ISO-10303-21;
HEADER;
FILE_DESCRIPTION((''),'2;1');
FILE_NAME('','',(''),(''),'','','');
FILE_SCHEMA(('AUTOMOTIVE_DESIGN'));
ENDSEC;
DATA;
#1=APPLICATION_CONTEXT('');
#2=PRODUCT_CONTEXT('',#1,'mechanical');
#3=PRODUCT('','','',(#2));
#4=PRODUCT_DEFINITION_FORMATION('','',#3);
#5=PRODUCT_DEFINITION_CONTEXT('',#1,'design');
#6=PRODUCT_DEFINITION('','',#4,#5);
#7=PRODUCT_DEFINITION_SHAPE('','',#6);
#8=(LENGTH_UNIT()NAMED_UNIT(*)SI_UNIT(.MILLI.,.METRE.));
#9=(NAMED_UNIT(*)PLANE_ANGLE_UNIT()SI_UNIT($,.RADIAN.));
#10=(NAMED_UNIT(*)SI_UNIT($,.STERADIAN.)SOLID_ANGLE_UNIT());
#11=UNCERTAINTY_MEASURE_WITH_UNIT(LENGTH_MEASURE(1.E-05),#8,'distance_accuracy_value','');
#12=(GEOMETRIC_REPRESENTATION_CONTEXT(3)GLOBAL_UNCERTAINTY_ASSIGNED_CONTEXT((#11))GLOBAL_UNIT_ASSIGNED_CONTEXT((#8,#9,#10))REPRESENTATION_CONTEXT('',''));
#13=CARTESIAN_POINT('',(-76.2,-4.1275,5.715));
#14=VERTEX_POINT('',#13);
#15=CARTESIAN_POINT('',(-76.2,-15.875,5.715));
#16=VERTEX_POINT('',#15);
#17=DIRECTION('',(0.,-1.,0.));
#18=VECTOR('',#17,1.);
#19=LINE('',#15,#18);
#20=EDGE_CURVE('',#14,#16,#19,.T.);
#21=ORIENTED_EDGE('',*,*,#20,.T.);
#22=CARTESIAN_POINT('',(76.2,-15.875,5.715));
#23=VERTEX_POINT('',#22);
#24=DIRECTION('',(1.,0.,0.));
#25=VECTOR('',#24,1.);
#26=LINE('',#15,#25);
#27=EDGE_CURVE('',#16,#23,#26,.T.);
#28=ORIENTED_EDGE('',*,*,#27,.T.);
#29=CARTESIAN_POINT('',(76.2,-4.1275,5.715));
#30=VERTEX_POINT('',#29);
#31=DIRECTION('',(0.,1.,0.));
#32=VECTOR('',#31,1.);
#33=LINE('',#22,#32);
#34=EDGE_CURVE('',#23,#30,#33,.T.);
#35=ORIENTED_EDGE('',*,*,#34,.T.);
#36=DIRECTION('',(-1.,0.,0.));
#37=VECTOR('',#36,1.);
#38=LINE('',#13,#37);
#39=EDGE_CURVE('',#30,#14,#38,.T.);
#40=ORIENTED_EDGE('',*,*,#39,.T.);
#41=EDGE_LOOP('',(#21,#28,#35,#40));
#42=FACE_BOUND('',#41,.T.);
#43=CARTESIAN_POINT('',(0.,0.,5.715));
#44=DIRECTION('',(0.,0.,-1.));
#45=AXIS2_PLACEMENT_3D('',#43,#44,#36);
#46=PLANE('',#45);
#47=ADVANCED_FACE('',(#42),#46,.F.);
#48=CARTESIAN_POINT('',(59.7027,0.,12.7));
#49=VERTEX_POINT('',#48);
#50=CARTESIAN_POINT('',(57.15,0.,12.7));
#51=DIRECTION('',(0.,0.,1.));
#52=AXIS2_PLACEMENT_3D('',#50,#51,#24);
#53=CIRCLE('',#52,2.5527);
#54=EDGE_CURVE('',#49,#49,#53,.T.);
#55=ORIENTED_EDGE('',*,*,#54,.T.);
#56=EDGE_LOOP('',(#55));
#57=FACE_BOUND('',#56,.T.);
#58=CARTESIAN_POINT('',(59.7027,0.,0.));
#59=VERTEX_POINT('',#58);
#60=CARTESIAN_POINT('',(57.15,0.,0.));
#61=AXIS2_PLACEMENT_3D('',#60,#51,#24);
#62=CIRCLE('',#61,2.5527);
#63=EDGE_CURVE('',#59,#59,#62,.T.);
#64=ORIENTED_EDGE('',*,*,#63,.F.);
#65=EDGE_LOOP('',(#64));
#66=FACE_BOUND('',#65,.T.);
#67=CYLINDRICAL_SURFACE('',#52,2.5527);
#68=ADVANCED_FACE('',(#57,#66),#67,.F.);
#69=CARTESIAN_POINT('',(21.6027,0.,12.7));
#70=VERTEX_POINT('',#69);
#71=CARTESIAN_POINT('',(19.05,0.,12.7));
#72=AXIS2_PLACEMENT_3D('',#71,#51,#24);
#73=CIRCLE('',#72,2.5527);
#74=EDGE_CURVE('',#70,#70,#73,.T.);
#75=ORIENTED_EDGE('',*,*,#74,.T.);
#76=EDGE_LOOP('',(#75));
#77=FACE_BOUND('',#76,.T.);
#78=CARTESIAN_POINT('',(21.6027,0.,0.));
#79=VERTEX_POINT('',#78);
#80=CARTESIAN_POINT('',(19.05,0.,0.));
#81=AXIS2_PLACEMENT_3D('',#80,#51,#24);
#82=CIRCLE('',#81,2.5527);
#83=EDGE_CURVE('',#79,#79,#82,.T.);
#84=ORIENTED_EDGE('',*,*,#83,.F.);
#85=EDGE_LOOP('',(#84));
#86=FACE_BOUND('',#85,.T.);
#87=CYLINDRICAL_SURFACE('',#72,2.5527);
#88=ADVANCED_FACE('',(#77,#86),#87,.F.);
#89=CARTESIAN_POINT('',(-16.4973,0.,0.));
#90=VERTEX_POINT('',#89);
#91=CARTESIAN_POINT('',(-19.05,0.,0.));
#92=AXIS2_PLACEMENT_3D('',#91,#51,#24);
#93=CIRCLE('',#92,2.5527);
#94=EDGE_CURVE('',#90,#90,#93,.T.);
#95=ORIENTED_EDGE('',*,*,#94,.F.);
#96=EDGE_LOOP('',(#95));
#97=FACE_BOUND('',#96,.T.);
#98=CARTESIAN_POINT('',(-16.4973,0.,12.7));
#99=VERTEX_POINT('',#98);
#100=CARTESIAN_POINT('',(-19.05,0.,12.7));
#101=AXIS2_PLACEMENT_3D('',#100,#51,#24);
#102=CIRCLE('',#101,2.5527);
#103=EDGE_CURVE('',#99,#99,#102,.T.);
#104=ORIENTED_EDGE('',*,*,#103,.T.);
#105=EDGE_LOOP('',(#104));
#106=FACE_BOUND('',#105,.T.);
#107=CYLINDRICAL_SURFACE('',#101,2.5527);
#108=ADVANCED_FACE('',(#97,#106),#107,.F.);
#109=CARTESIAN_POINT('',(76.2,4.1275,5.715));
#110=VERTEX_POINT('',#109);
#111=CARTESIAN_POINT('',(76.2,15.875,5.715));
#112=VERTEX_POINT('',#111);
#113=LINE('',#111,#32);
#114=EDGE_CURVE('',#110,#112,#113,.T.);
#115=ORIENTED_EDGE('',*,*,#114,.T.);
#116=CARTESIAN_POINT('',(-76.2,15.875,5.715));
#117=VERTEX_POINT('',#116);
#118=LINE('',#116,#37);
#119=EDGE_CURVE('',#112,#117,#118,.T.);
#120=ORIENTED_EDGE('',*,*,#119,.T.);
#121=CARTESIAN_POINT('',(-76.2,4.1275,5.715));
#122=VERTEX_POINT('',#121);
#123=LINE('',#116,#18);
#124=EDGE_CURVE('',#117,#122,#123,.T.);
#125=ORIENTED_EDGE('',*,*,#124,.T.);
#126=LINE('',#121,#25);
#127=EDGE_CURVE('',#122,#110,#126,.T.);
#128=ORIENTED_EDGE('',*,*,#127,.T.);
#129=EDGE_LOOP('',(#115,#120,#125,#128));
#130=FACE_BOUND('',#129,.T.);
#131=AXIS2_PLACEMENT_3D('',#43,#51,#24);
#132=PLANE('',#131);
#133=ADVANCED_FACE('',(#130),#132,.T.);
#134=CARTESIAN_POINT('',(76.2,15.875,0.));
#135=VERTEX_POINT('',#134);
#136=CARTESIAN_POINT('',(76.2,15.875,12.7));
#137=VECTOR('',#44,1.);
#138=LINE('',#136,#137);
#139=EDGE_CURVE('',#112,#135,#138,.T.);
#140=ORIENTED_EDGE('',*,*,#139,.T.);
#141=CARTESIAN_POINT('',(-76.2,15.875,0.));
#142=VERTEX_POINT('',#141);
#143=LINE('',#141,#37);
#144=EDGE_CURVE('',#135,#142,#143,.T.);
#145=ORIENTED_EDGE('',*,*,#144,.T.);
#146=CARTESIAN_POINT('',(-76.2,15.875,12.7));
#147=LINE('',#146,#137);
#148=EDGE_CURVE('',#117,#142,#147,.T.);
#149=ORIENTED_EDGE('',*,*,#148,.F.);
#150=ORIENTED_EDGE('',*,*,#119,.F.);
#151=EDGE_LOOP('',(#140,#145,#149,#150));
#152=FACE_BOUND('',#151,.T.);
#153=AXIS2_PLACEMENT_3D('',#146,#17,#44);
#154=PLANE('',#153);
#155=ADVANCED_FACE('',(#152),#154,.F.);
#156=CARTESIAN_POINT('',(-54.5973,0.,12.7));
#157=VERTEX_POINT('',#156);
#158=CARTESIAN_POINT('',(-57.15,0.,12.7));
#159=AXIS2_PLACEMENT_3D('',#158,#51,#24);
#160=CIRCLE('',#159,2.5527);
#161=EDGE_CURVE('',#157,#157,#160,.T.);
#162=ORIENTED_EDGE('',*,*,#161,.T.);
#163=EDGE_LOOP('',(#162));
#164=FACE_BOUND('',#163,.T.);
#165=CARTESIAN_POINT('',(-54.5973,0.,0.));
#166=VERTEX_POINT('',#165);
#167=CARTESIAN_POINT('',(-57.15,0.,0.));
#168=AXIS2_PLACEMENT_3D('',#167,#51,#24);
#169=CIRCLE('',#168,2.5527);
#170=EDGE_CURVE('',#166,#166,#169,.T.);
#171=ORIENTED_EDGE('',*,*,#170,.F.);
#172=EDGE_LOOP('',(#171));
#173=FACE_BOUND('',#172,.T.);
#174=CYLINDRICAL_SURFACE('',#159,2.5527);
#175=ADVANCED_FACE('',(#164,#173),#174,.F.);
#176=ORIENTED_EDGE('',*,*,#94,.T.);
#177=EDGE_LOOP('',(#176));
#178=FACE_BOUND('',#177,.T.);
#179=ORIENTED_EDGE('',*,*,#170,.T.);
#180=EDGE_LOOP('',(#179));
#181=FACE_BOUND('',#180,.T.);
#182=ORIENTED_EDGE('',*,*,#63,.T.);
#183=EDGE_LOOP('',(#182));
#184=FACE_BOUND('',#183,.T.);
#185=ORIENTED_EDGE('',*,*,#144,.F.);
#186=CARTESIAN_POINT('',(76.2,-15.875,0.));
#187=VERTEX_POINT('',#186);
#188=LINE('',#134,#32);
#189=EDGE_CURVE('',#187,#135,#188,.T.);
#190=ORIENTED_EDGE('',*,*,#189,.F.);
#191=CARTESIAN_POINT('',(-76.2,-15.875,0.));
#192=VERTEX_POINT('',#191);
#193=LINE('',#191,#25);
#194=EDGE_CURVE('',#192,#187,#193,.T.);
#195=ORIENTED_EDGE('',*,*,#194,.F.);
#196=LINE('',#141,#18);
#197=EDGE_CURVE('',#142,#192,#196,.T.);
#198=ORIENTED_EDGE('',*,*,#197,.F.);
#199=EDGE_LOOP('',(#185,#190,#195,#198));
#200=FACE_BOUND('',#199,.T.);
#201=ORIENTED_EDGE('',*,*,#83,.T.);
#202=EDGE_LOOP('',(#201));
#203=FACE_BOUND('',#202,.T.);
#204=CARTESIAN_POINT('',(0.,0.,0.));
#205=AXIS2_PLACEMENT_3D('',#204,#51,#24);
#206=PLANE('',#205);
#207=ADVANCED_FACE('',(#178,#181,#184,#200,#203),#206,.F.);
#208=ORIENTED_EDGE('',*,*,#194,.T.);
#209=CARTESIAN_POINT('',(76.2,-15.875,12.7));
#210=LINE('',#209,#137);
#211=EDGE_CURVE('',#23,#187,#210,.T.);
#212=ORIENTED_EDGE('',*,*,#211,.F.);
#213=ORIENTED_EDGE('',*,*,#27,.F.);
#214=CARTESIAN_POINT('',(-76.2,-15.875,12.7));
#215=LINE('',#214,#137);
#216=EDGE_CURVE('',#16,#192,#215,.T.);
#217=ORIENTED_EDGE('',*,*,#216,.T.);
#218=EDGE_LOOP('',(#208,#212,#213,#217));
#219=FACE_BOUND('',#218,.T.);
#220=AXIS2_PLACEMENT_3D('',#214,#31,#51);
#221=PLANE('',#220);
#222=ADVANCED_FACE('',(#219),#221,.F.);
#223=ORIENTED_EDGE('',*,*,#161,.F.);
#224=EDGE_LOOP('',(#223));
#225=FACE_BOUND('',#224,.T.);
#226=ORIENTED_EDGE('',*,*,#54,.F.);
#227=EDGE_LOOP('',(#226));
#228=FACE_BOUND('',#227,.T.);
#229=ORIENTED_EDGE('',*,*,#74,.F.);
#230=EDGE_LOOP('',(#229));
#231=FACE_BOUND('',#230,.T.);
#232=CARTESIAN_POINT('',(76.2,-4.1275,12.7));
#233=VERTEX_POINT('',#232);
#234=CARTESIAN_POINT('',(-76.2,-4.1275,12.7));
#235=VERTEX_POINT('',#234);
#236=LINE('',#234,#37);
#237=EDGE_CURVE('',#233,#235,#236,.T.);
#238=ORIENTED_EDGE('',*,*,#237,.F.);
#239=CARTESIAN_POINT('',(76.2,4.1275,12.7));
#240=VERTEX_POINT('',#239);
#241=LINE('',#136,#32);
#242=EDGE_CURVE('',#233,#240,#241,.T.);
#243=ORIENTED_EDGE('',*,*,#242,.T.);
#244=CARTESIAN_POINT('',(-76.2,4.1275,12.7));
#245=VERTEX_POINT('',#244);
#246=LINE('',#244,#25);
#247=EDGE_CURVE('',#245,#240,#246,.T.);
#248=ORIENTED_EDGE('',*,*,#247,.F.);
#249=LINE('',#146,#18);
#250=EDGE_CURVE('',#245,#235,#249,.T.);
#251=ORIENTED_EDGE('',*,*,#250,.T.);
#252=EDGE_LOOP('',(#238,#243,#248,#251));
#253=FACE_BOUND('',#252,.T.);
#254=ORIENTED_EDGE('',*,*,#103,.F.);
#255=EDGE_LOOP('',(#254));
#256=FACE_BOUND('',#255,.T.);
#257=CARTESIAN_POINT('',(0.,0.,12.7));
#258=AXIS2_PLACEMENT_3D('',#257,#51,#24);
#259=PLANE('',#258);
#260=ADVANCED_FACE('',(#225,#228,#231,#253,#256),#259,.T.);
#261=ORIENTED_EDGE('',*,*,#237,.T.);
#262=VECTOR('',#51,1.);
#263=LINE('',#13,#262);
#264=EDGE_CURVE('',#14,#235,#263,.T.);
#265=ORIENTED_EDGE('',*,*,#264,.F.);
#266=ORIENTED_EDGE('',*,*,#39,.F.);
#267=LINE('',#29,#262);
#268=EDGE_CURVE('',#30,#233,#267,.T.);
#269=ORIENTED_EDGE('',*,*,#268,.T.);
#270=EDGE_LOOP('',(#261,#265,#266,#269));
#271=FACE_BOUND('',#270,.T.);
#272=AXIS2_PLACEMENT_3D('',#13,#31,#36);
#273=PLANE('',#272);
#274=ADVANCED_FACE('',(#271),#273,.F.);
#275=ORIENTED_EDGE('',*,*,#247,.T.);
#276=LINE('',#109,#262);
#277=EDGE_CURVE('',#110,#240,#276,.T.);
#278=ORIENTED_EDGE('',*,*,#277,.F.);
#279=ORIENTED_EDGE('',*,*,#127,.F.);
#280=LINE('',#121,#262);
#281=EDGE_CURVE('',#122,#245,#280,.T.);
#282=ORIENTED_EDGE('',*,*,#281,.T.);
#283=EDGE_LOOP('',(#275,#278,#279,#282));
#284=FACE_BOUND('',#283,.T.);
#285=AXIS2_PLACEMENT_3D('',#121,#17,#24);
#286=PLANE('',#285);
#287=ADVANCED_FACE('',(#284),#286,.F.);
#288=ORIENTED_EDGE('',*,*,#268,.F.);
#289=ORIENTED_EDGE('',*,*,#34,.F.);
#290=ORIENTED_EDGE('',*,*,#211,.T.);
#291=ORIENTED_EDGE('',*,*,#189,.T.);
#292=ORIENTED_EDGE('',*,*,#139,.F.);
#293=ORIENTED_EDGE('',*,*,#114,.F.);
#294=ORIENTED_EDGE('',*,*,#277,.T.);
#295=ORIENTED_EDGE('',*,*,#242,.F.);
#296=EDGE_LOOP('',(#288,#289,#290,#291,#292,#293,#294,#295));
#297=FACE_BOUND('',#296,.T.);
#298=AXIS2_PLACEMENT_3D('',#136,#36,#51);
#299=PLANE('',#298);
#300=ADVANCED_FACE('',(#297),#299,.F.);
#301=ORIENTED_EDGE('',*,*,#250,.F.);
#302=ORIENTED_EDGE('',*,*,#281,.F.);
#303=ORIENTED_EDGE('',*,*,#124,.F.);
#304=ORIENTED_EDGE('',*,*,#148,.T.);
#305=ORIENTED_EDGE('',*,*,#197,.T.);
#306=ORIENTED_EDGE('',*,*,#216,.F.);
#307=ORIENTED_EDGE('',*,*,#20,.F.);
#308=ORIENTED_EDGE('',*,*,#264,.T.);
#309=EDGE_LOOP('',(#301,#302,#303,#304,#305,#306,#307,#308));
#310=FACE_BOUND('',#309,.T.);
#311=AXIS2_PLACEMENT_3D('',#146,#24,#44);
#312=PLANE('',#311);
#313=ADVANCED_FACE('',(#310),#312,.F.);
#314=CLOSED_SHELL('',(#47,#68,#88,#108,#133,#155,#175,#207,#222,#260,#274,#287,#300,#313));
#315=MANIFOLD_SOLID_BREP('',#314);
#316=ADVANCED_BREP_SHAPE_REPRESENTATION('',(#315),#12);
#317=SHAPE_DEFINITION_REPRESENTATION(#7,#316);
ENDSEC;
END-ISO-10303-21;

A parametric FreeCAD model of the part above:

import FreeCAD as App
import Part
import Sketcher

V = App.Vector
Q = App.Units.Quantity

doc = App.newDocument("Part")
body = doc.addObject("PartDesign::Body", "Body")

# Sketch on XY plane
sketch1 = doc.addObject("Sketcher::SketchObject", "Sketch")
body.addObject(sketch1)
sketch1.AttachmentSupport = (doc.XY_Plane, [""])
sketch1.MapMode = "FlatFace"
sketch1.addGeometry(Part.LineSegment(V(-76, 16, 0), V(-76, -16, 0)), False)
sketch1.addGeometry(Part.LineSegment(V(-76, -16, 0), V(76, -16, 0)), False)
sketch1.addGeometry(Part.LineSegment(V(76, -16, 0), V(76, 16, 0)), False)
sketch1.addGeometry(Part.LineSegment(V(76, 16, 0), V(-76, 16, 0)), False)
sketch1.addConstraint(Sketcher.Constraint("Coincident", 0, 2, 1, 1))
sketch1.addConstraint(Sketcher.Constraint("Coincident", 1, 2, 2, 1))
sketch1.addConstraint(Sketcher.Constraint("Coincident", 2, 2, 3, 1))
sketch1.addConstraint(Sketcher.Constraint("Coincident", 3, 2, 0, 1))
sketch1.addConstraint(Sketcher.Constraint("Vertical", 0))
sketch1.addConstraint(Sketcher.Constraint("Horizontal", 1))
sketch1.addConstraint(Sketcher.Constraint("Vertical", 2))
sketch1.addConstraint(Sketcher.Constraint("Horizontal", 3))
sketch1.addConstraint(Sketcher.Constraint("Symmetric", 0, 2, 2, 2, -1, 1))
sketch1.addConstraint(Sketcher.Constraint("DistanceX", 1, 1, 1, 2, Q("6 in")))
sketch1.addConstraint(Sketcher.Constraint("DistanceY", 0, 2, 0, 1, Q("1.25 in")))
pad1 = doc.addObject("PartDesign::Pad", "Pad")
body.addObject(pad1)
pad1.Profile = sketch1
pad1.Length = Q("0.5 in")

# Sketch on XY plane
sketch2 = doc.addObject("Sketcher::SketchObject", "Sketch001")
body.addObject(sketch2)
sketch2.AttachmentSupport = (doc.XY_Plane, [""])
sketch2.MapMode = "FlatFace"
sketch2.AttachmentOffset = App.Placement(V(0, 0, 0.5 * 25.4), App.Rotation())
sketch2.addGeometry(Part.LineSegment(V(-76, 16, 0), V(-76, 4, 0)), False)
sketch2.addGeometry(Part.LineSegment(V(-76, 4, 0), V(76, 4, 0)), False)
sketch2.addGeometry(Part.LineSegment(V(76, 4, 0), V(76, 16, 0)), False)
sketch2.addGeometry(Part.LineSegment(V(76, 16, 0), V(-76, 16, 0)), False)
sketch2.addGeometry(Part.LineSegment(V(-76, -4, 0), V(-76, -16, 0)), False)
sketch2.addGeometry(Part.LineSegment(V(-76, -16, 0), V(76, -16, 0)), False)
sketch2.addGeometry(Part.LineSegment(V(76, -16, 0), V(76, -4, 0)), False)
sketch2.addGeometry(Part.LineSegment(V(76, -4, 0), V(-76, -4, 0)), False)
sketch2.addConstraint(Sketcher.Constraint("Coincident", 0, 2, 1, 1))
sketch2.addConstraint(Sketcher.Constraint("Coincident", 1, 2, 2, 1))
sketch2.addConstraint(Sketcher.Constraint("Coincident", 2, 2, 3, 1))
sketch2.addConstraint(Sketcher.Constraint("Coincident", 3, 2, 0, 1))
sketch2.addConstraint(Sketcher.Constraint("Coincident", 4, 2, 5, 1))
sketch2.addConstraint(Sketcher.Constraint("Coincident", 5, 2, 6, 1))
sketch2.addConstraint(Sketcher.Constraint("Coincident", 6, 2, 7, 1))
sketch2.addConstraint(Sketcher.Constraint("Coincident", 7, 2, 4, 1))
sketch2.addConstraint(Sketcher.Constraint("Vertical", 0))
sketch2.addConstraint(Sketcher.Constraint("Horizontal", 1))
sketch2.addConstraint(Sketcher.Constraint("Vertical", 2))
sketch2.addConstraint(Sketcher.Constraint("Horizontal", 3))
sketch2.addConstraint(Sketcher.Constraint("Vertical", 4))
sketch2.addConstraint(Sketcher.Constraint("Horizontal", 5))
sketch2.addConstraint(Sketcher.Constraint("Vertical", 6))
sketch2.addConstraint(Sketcher.Constraint("Horizontal", 7))
sketch2.addConstraint(Sketcher.Constraint("Symmetric", 2, 2, 4, 2, -1, 1))
sketch2.addConstraint(Sketcher.Constraint("Symmetric", 0, 2, 6, 2, -1, 1))
sketch2.addConstraint(Sketcher.Constraint("Vertical", 3, 2, 4, 2))
sketch2.addConstraint(Sketcher.Constraint("DistanceX", 1, 1, 1, 2, Q("6 in")))
sketch2.addConstraint(Sketcher.Constraint("DistanceY", 4, 2, 3, 2, Q("1.25 in")))
sketch2.addConstraint(Sketcher.Constraint("DistanceY", 0, 2, 0, 1, Q("0.4625 in")))
pocket1 = doc.addObject("PartDesign::Pocket", "Pocket")
body.addObject(pocket1)
pocket1.Profile = sketch2
pocket1.Length = Q("0.275 in")

# Sketch on XY plane
sketch3 = doc.addObject("Sketcher::SketchObject", "Sketch002")
body.addObject(sketch3)
sketch3.AttachmentSupport = (doc.XY_Plane, [""])
sketch3.MapMode = "FlatFace"
sketch3.AttachmentOffset = App.Placement(V(0, 0, 0.5 * 25.4), App.Rotation())
sketch3.addGeometry(Part.Circle(V(-57.1, 0, 0), V(0, 0, 1), 2.6), False)
sketch3.addGeometry(Part.Circle(V(-19.1, 0, 0), V(0, 0, 1), 2.6), False)
sketch3.addGeometry(Part.Circle(V(19.1, 0, 0), V(0, 0, 1), 2.6), False)
sketch3.addGeometry(Part.Circle(V(57.1, 0, 0), V(0, 0, 1), 2.6), False)
sketch3.addConstraint(Sketcher.Constraint("Equal", 0, 1))
sketch3.addConstraint(Sketcher.Constraint("Equal", 1, 2))
sketch3.addConstraint(Sketcher.Constraint("Equal", 2, 3))
sketch3.addConstraint(Sketcher.Constraint("Symmetric", 1, 3, 2, 3, -1, 1))
sketch3.addConstraint(Sketcher.Constraint("Symmetric", 0, 3, 3, 3, -1, 1))
sketch3.addConstraint(Sketcher.Constraint("PointOnObject", 0, 3, -1))
sketch3.addConstraint(Sketcher.Constraint("PointOnObject", 1, 3, -1))
sketch3.addConstraint(Sketcher.Constraint("Diameter", 0, Q("0.201 in")))
sketch3.addConstraint(Sketcher.Constraint("DistanceX", 0, 3, 2, 3, Q("3 in")))
sketch3.addConstraint(Sketcher.Constraint("DistanceX", 0, 3, 1, 3, Q("1.5 in")))
doc.recompute()
hole = doc.addObject("PartDesign::Hole", "Hole")
body.addObject(hole)
hole.Profile = sketch3
hole.ThreadType = "None"
hole.Diameter = Q("0.201 in")
hole.DepthType = "Dimension"
hole.Depth = Q("0.5 in")
hole.DrillPoint = "Flat"

doc.recompute()
